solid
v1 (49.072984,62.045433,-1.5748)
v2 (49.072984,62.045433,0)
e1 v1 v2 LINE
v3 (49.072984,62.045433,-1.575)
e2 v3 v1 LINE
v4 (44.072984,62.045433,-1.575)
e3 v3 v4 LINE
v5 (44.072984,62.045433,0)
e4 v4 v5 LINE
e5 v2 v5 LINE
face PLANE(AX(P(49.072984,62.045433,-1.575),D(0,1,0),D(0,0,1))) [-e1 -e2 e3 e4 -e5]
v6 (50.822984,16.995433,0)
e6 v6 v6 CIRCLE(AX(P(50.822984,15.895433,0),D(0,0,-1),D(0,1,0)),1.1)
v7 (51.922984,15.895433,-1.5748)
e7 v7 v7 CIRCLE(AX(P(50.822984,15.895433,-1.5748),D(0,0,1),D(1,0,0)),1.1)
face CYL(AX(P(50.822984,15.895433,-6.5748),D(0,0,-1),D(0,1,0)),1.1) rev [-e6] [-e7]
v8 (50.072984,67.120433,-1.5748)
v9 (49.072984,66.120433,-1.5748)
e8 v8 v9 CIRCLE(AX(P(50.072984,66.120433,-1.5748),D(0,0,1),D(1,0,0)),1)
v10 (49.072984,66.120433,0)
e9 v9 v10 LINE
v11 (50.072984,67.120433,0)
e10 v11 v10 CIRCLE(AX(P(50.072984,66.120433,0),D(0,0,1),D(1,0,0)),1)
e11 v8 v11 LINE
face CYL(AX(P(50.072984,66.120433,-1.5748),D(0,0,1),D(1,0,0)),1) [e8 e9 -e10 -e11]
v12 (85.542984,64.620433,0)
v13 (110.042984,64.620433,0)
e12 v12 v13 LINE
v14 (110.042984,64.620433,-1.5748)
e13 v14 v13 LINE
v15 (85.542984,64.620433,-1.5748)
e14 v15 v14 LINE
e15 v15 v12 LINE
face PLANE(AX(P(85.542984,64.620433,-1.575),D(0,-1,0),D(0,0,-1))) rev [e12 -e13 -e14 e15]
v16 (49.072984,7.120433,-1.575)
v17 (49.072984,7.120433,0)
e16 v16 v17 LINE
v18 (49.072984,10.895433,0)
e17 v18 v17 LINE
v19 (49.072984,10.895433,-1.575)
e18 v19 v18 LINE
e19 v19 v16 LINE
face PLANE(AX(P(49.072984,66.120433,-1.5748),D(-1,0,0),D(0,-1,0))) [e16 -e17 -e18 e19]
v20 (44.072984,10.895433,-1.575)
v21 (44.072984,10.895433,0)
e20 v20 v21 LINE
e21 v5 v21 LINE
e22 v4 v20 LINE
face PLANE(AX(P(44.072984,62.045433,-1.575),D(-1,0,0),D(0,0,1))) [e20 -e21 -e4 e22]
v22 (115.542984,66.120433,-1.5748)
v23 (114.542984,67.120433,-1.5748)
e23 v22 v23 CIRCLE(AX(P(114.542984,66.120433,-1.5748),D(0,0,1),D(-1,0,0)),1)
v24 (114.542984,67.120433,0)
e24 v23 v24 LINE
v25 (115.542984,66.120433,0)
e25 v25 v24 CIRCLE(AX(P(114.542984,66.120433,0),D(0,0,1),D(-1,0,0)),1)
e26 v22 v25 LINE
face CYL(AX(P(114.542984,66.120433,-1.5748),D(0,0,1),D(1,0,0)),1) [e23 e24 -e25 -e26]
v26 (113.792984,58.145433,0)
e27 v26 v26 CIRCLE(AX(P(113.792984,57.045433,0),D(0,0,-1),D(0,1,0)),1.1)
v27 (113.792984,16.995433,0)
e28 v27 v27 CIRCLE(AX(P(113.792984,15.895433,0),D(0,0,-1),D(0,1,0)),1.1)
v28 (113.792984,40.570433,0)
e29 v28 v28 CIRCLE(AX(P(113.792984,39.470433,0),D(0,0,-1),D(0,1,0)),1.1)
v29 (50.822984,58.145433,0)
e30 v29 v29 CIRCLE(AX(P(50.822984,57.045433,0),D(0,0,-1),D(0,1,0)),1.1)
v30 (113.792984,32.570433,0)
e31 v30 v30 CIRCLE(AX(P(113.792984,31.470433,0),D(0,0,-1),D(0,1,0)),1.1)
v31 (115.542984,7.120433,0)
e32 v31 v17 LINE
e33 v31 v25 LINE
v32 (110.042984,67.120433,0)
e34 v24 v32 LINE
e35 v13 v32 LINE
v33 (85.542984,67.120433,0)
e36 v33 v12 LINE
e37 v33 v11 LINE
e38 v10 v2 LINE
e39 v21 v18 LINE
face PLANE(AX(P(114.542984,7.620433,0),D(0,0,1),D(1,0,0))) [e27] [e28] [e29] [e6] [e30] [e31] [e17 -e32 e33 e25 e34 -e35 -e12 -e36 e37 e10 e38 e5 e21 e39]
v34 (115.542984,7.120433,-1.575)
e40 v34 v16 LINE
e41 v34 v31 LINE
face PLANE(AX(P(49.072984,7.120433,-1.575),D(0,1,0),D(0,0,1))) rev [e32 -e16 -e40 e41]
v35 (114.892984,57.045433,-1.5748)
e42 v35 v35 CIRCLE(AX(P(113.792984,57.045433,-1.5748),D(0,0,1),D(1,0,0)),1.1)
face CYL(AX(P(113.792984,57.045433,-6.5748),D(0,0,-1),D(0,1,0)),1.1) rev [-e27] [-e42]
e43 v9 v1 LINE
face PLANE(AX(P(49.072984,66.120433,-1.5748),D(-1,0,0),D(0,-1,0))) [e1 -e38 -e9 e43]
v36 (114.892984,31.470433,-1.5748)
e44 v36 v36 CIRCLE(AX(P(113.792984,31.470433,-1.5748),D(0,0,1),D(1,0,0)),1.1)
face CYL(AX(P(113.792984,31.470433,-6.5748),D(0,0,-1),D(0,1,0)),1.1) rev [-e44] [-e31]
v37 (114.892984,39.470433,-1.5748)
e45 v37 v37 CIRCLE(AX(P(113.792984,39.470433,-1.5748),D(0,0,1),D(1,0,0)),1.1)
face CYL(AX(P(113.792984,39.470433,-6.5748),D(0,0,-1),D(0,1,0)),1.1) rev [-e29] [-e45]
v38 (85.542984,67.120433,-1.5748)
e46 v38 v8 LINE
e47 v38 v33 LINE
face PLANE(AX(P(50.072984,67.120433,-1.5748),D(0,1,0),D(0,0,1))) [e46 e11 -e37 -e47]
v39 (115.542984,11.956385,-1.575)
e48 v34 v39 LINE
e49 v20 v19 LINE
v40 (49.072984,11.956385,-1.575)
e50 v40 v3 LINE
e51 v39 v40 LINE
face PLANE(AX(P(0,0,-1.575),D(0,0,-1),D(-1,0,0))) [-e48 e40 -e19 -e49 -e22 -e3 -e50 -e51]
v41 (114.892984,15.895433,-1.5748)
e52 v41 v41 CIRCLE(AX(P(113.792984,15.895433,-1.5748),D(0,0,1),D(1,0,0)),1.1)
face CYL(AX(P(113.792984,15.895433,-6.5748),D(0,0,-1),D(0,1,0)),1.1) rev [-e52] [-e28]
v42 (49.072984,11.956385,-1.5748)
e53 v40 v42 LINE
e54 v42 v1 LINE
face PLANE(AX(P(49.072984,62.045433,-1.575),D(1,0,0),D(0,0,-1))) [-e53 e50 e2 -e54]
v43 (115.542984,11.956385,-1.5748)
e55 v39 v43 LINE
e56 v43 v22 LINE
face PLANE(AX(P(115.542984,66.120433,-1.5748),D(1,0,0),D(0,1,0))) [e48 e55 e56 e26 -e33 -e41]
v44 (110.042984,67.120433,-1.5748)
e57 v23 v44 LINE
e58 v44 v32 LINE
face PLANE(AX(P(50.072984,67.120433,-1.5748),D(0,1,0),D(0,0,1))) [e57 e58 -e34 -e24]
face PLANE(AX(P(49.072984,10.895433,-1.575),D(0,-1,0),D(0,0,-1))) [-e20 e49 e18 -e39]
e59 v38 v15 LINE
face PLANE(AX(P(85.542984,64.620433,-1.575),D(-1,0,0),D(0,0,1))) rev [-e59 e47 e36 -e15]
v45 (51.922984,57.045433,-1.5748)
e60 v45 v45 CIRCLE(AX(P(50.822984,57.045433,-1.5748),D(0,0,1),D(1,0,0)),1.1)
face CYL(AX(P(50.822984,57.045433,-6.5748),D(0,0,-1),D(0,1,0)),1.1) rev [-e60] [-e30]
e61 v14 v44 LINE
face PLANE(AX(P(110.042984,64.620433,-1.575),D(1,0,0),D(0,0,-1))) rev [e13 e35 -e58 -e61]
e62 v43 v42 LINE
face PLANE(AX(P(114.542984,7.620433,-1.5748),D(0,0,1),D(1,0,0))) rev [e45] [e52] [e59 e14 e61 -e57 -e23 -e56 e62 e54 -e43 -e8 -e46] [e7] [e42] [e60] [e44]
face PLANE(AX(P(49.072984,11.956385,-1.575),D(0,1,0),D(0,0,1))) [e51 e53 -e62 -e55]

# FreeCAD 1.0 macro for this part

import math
import FreeCAD as App
import Part
import Sketcher

V = App.Vector


def add_polygon(sketch, points):
    """Adds a closed chain of lines whose ends are joined by coincident constraints."""
    first, n = sketch.GeometryCount, len(points)
    for a, b in zip(points, points[1:] + points[:1]):
        sketch.addGeometry(Part.LineSegment(App.Vector(*a, 0), App.Vector(*b, 0)), False)
    for i in range(n):
        sketch.addConstraint(Sketcher.Constraint("Coincident", first + i, 2, first + (i + 1) % n, 1))

doc = App.newDocument("Part")
body = doc.addObject("PartDesign::Body", "Body")

sketch1 = body.newObject("Sketcher::SketchObject", "Sketch")
sketch1.AttachmentSupport = (doc.getObject("XY_Plane"), [""])
sketch1.MapMode = "FlatFace"
sketch1.addGeometry(Part.LineSegment(V(49.1, 6.6, 0), V(114.5, 6.6, 0)), False)
sketch1.addGeometry(Part.ArcOfCircle(Part.Circle(V(114.5, 7.6, 0), V(0, 0, 1), 1), math.radians(-90), math.radians(0)), False)
sketch1.addGeometry(Part.LineSegment(V(115.5, 7.6, 0), V(115.5, 66.1, 0)), False)
sketch1.addGeometry(Part.ArcOfCircle(Part.Circle(V(114.5, 66.1, 0), V(0, 0, 1), 1), math.radians(0), math.radians(90)), False)
sketch1.addGeometry(Part.LineSegment(V(114.5, 67.1, 0), V(50.1, 67.1, 0)), False)
sketch1.addGeometry(Part.ArcOfCircle(Part.Circle(V(50.1, 66.1, 0), V(0, 0, 1), 1), math.radians(90), math.radians(180)), False)
sketch1.addGeometry(Part.LineSegment(V(49.1, 66.1, 0), V(49.1, 6.6, 0)), False)
sketch1.addConstraint(Sketcher.Constraint("Tangent", 0, 2, 1, 1))
sketch1.addConstraint(Sketcher.Constraint("Tangent", 1, 2, 2, 1))
sketch1.addConstraint(Sketcher.Constraint("Tangent", 2, 2, 3, 1))
sketch1.addConstraint(Sketcher.Constraint("Tangent", 3, 2, 4, 1))
sketch1.addConstraint(Sketcher.Constraint("Tangent", 4, 2, 5, 1))
sketch1.addConstraint(Sketcher.Constraint("Tangent", 5, 2, 6, 1))
sketch1.addConstraint(Sketcher.Constraint("Coincident", 6, 2, 0, 1))
sketch1.addConstraint(Sketcher.Constraint("Horizontal", 0))
sketch1.addConstraint(Sketcher.Constraint("Vertical", 2))
sketch1.addConstraint(Sketcher.Constraint("Horizontal", 4))
sketch1.addConstraint(Sketcher.Constraint("Vertical", 6))
sketch1.addConstraint(Sketcher.Constraint("Equal", 1, 3))
sketch1.addConstraint(Sketcher.Constraint("Equal", 3, 5))
sketch1.addConstraint(Sketcher.Constraint("Radius", 1, 1.0))
sketch1.addConstraint(Sketcher.Constraint("DistanceY", 2, 1, 2, 2, 58.5))
sketch1.addConstraint(Sketcher.Constraint("DistanceX", 0, 1, 0, 2, 65.47))
sketch1.addConstraint(Sketcher.Constraint("DistanceX", -1, 1, 1, 3, 114.542984))
sketch1.addConstraint(Sketcher.Constraint("DistanceY", -1, 1, 1, 3, 7.620433))
pad1 = body.newObject("PartDesign::Pad", "Pad")
pad1.Profile = sketch1
pad1.Length = 1.5748
pad1.Reversed = True

sketch2 = body.newObject("Sketcher::SketchObject", "Sketch001")
sketch2.AttachmentSupport = (doc.getObject("XY_Plane"), [""])
sketch2.MapMode = "FlatFace"
add_polygon(sketch2, [(49, 12), (49, 7), (116, 7), (116, 12)])
sketch2.addConstraint(Sketcher.Constraint("Vertical", 0))
sketch2.addConstraint(Sketcher.Constraint("Horizontal", 1))
sketch2.addConstraint(Sketcher.Constraint("Vertical", 2))
sketch2.addConstraint(Sketcher.Constraint("Horizontal", 3))
sketch2.addConstraint(Sketcher.Constraint("DistanceX", 1, 1, 1, 2, 66.47))
sketch2.addConstraint(Sketcher.Constraint("DistanceY", 0, 2, 0, 1, 5.335952))
sketch2.addConstraint(Sketcher.Constraint("DistanceX", -1, 1, 0, 2, 49.072984))
sketch2.addConstraint(Sketcher.Constraint("DistanceY", -1, 1, 0, 2, 6.620433))
pad2 = body.newObject("PartDesign::Pad", "Pad001")
pad2.Profile = sketch2
pad2.Length = 1.575
pad2.Reversed = True

sketch3 = body.newObject("Sketcher::SketchObject", "Sketch002")
sketch3.AttachmentSupport = (doc.getObject("XY_Plane"), [""])
sketch3.MapMode = "FlatFace"
add_polygon(sketch3, [(49.1, 7.1), (49.1, 6.6), (115.5, 6.6), (115.5, 7.1)])
sketch3.addConstraint(Sketcher.Constraint("Vertical", 0))
sketch3.addConstraint(Sketcher.Constraint("Horizontal", 1))
sketch3.addConstraint(Sketcher.Constraint("Vertical", 2))
sketch3.addConstraint(Sketcher.Constraint("Horizontal", 3))
sketch3.addConstraint(Sketcher.Constraint("DistanceY", 0, 2, 0, 1, 0.5))
sketch3.addConstraint(Sketcher.Constraint("DistanceX", 1, 1, 1, 2, 66.47))
sketch3.addConstraint(Sketcher.Constraint("DistanceX", -1, 1, 0, 2, 49.072984))
sketch3.addConstraint(Sketcher.Constraint("DistanceY", -1, 1, 0, 2, 6.620433))
pocket1 = body.newObject("PartDesign::Pocket", "Pocket")
pocket1.Profile = sketch3
pocket1.Type = "ThroughAll"

sketch4 = body.newObject("Sketcher::SketchObject", "Sketch003")
sketch4.AttachmentSupport = (doc.getObject("XY_Plane"), [""])
sketch4.MapMode = "FlatFace"
sketch4.AttachmentOffset = App.Placement(V(0, 0, -6.5748), App.Rotation())
sketch4.addGeometry(Part.Circle(V(50.8, 15.9, 0), V(0, 0, 1), 1.1), False)
sketch4.addGeometry(Part.Circle(V(50.8, 57, 0), V(0, 0, 1), 1.1), False)
sketch4.addGeometry(Part.Circle(V(113.8, 57, 0), V(0, 0, 1), 1.1), False)
sketch4.addGeometry(Part.Circle(V(113.8, 39.5, 0), V(0, 0, 1), 1.1), False)
sketch4.addGeometry(Part.Circle(V(113.8, 15.9, 0), V(0, 0, 1), 1.1), False)
sketch4.addGeometry(Part.Circle(V(113.8, 31.5, 0), V(0, 0, 1), 1.1), False)
sketch4.addConstraint(Sketcher.Constraint("Equal", 0, 1))
sketch4.addConstraint(Sketcher.Constraint("Equal", 1, 2))
sketch4.addConstraint(Sketcher.Constraint("Equal", 2, 3))
sketch4.addConstraint(Sketcher.Constraint("Equal", 3, 4))
sketch4.addConstraint(Sketcher.Constraint("Equal", 4, 5))
sketch4.addConstraint(Sketcher.Constraint("Horizontal", 1, 3, 2, 3))
sketch4.addConstraint(Sketcher.Constraint("Horizontal", 0, 3, 4, 3))
sketch4.addConstraint(Sketcher.Constraint("Vertical", 0, 3, 1, 3))
sketch4.addConstraint(Sketcher.Constraint("Vertical", 2, 3, 3, 3))
sketch4.addConstraint(Sketcher.Constraint("Vertical", 3, 3, 4, 3))
sketch4.addConstraint(Sketcher.Constraint("Vertical", 4, 3, 5, 3))
sketch4.addConstraint(Sketcher.Constraint("Diameter", 0, 2.2))
sketch4.addConstraint(Sketcher.Constraint("DistanceY", 5, 3, 3, 3, 8.0))
sketch4.addConstraint(Sketcher.Constraint("DistanceY", 0, 3, 1, 3, 41.15))
sketch4.addConstraint(Sketcher.Constraint("DistanceX", 1, 3, 2, 3, 62.97))
sketch4.addConstraint(Sketcher.Constraint("DistanceY", 3, 3, 2, 3, 17.575))
sketch4.addConstraint(Sketcher.Constraint("DistanceX", -1, 1, 0, 3, 50.822984))
sketch4.addConstraint(Sketcher.Constraint("DistanceY", -1, 1, 0, 3, 15.895433))
doc.recompute()
hole = body.newObject("PartDesign::Hole", "Hole")
hole.Profile = sketch4
hole.ThreadType = "None"
hole.Diameter = 2.2
hole.DepthType = "ThroughAll"
hole.Reversed = True

sketch5 = body.newObject("Sketcher::SketchObject", "Sketch004")
sketch5.AttachmentSupport = (doc.getObject("XY_Plane"), [""])
sketch5.MapMode = "FlatFace"
add_polygon(sketch5, [(44, 62), (44, 11), (49, 11), (49, 62)])
sketch5.addConstraint(Sketcher.Constraint("Vertical", 0))
sketch5.addConstraint(Sketcher.Constraint("Horizontal", 1))
sketch5.addConstraint(Sketcher.Constraint("Vertical", 2))
sketch5.addConstraint(Sketcher.Constraint("Horizontal", 3))
sketch5.addConstraint(Sketcher.Constraint("DistanceX", 1, 1, 1, 2, 5.0))
sketch5.addConstraint(Sketcher.Constraint("DistanceY", 0, 2, 0, 1, 51.15))
sketch5.addConstraint(Sketcher.Constraint("DistanceX", -1, 1, 0, 2, 44.072984))
sketch5.addConstraint(Sketcher.Constraint("DistanceY", -1, 1, 0, 2, 10.895433))
pad3 = body.newObject("PartDesign::Pad", "Pad002")
pad3.Profile = sketch5
pad3.Length = 1.575
pad3.Reversed = True

sketch6 = body.newObject("Sketcher::SketchObject", "Sketch005")
sketch6.AttachmentSupport = (doc.getObject("XY_Plane"), [""])
sketch6.MapMode = "FlatFace"
add_polygon(sketch6, [(85.5, 67.1), (85.5, 64.6), (110, 64.6), (110, 67.1)])
sketch6.addConstraint(Sketcher.Constraint("Vertical", 0))
sketch6.addConstraint(Sketcher.Constraint("Horizontal", 1))
sketch6.addConstraint(Sketcher.Constraint("Vertical", 2))
sketch6.addConstraint(Sketcher.Constraint("Horizontal", 3))
sketch6.addConstraint(Sketcher.Constraint("DistanceX", 1, 1, 1, 2, 24.5))
sketch6.addConstraint(Sketcher.Constraint("DistanceY", 0, 2, 0, 1, 2.5))
sketch6.addConstraint(Sketcher.Constraint("DistanceX", -1, 1, 0, 2, 85.542984))
sketch6.addConstraint(Sketcher.Constraint("DistanceY", -1, 1, 0, 2, 64.620433))
pocket2 = body.newObject("PartDesign::Pocket", "Pocket001")
pocket2.Profile = sketch6
pocket2.Type = "ThroughAll"

doc.recompute()
